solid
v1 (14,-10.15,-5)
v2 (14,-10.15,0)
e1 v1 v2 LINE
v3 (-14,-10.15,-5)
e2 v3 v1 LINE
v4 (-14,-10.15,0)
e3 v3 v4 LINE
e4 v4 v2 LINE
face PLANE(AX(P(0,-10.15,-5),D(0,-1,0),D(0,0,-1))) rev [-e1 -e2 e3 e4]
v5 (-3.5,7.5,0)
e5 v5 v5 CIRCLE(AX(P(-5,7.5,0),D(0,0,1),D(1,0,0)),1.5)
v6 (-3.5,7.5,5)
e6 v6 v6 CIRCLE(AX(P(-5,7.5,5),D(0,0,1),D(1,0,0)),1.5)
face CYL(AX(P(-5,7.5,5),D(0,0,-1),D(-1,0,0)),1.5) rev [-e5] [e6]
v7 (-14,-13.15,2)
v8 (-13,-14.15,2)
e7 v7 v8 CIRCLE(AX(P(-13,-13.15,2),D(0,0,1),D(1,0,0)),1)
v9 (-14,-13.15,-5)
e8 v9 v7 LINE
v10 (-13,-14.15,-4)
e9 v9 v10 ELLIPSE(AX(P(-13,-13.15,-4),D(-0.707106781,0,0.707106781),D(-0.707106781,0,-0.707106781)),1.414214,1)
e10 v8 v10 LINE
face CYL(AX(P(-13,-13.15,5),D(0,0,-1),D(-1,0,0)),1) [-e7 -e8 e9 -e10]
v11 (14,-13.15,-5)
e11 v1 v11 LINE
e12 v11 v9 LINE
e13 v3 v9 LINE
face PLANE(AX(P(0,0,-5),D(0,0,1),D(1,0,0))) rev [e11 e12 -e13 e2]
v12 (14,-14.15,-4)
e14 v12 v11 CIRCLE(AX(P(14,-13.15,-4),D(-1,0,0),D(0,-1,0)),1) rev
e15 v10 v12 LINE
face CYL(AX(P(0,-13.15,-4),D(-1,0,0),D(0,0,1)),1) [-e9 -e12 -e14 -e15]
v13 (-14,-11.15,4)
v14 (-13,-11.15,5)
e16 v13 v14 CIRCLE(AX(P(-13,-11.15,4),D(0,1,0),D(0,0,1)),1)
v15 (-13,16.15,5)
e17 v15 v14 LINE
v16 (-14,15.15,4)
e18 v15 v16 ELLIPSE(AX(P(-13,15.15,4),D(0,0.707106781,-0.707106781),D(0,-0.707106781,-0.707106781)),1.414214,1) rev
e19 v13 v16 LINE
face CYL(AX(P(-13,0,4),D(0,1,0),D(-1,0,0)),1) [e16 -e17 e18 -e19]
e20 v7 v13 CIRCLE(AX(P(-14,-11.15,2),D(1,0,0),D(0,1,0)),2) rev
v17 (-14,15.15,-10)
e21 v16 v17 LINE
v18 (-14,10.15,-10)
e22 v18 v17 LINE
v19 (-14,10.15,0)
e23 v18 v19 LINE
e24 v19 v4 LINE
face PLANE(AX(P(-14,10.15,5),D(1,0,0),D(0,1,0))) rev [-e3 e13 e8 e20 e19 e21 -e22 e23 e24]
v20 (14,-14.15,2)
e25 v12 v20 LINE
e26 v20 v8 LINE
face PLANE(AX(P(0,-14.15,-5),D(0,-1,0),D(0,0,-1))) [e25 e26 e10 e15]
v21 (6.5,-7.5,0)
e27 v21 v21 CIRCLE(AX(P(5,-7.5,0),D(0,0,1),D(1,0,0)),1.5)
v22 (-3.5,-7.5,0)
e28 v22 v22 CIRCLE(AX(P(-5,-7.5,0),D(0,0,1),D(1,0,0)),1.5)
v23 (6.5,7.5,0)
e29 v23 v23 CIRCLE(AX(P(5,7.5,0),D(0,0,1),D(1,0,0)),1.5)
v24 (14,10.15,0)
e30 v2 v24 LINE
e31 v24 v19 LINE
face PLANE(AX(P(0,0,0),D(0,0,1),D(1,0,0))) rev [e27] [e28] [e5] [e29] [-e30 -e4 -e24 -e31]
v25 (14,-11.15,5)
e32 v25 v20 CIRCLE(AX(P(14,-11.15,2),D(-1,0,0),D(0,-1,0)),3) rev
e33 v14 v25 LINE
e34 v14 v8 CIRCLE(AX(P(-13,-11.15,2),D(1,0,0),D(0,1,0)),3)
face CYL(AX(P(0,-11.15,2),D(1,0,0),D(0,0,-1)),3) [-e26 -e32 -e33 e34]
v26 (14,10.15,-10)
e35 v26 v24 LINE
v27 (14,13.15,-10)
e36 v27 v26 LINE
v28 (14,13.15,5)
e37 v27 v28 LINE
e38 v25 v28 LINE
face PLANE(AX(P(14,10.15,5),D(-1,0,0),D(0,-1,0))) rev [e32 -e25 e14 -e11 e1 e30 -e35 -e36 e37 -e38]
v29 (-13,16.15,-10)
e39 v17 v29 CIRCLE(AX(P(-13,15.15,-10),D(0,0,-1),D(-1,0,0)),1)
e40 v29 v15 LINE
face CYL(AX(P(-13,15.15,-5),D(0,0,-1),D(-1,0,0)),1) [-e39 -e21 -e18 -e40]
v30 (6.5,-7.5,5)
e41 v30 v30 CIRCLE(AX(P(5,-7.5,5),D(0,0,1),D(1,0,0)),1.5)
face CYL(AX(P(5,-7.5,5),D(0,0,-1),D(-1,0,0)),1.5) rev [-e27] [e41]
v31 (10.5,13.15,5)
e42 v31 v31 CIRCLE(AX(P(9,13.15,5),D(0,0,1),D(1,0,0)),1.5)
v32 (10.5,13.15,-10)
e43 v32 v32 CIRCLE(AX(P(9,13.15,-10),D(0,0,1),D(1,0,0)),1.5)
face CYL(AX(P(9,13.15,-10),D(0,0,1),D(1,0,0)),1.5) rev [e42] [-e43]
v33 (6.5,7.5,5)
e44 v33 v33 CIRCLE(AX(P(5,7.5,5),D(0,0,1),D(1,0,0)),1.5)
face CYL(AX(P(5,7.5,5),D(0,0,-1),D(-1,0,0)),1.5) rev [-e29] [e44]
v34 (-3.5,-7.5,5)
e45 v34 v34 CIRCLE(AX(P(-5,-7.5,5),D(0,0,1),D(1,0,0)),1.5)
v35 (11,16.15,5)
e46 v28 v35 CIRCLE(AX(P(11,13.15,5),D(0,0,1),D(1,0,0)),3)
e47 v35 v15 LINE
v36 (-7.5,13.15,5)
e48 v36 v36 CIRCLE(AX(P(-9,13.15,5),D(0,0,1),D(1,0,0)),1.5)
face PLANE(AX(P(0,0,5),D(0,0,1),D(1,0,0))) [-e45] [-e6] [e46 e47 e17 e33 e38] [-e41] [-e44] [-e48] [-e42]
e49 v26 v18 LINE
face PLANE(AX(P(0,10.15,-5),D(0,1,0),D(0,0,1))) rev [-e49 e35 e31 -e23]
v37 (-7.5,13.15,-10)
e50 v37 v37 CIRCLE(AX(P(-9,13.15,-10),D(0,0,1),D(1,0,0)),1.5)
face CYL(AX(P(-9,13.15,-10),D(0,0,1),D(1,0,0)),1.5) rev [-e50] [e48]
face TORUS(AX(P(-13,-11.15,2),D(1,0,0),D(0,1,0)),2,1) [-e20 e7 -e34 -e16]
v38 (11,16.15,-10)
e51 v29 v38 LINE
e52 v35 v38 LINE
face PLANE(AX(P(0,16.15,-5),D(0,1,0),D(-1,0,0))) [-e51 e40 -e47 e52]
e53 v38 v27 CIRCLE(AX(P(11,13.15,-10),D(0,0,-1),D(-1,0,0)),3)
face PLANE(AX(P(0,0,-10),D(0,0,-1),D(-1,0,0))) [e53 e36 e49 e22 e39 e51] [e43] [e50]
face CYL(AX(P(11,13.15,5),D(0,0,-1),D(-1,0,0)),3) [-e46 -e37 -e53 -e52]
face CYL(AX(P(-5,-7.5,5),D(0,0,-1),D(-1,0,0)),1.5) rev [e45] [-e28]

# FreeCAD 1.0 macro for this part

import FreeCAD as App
import Part
import Sketcher

V = App.Vector


def edges_at(feature, points):
    """Names of the edges that pass closest to the given points."""
    edges = feature.Shape.Edges
    near = lambda p: min(range(len(edges)), key=lambda i: edges[i].distToShape(Part.Vertex(*p))[0])
    return sorted({f"Edge{near(p) + 1}" for p in points})

doc = App.newDocument("Part")
body = doc.addObject("PartDesign::Body", "Body")

# Sketch on XY plane
sketch1 = body.newObject("Sketcher::SketchObject", "Sketch")
sketch1.AttachmentSupport = (doc.getObject("XY_Plane"), [""])
sketch1.MapMode = "FlatFace"
sketch1.addGeometry([
    Part.LineSegment(V(-14, 10.2, 0), V(-14, -10.2, 0)),  # 0
    Part.LineSegment(V(-14, -10.2, 0), V(14, -10.2, 0)),  # 1
    Part.LineSegment(V(14, -10.2, 0), V(14, 10.2, 0)),  # 2
    Part.LineSegment(V(14, 10.2, 0), V(-14, 10.2, 0)),  # 3
    Part.Circle(V(-5, -7.5, 0), V(0, 0, 1), 1.5),  # 4
    Part.Circle(V(5, -7.5, 0), V(0, 0, 1), 1.5),  # 5
    Part.Circle(V(-5, 7.5, 0), V(0, 0, 1), 1.5),  # 6
    Part.Circle(V(5, 7.5, 0), V(0, 0, 1), 1.5),  # 7
], False)
sketch1.addConstraint([
    Sketcher.Constraint("Coincident", 0, 2, 1, 1),
    Sketcher.Constraint("Coincident", 1, 2, 2, 1),
    Sketcher.Constraint("Coincident", 2, 2, 3, 1),
    Sketcher.Constraint("Coincident", 3, 2, 0, 1),
    Sketcher.Constraint("Vertical", 0),
    Sketcher.Constraint("Horizontal", 1),
    Sketcher.Constraint("Vertical", 2),
    Sketcher.Constraint("Horizontal", 3),
    Sketcher.Constraint("Equal", 4, 5),
    Sketcher.Constraint("Equal", 5, 6),
    Sketcher.Constraint("Equal", 6, 7),
    Sketcher.Constraint("Symmetric", 5, 3, 6, 3, -1, 1),
    Sketcher.Constraint("Symmetric", 4, 3, 7, 3, -1, 1),
    Sketcher.Constraint("Symmetric", 0, 2, 2, 2, -1, 1),
    Sketcher.Constraint("Symmetric", 4, 3, 5, 3, -2),
    Sketcher.Constraint("Diameter", 4, 3.0),
    Sketcher.Constraint("DistanceX", 1, 1, 1, 2, 28.0),
    Sketcher.Constraint("DistanceY", 0, 2, 0, 1, 20.3),
    Sketcher.Constraint("DistanceX", 4, 3, -1, 1, 5.0),
    Sketcher.Constraint("DistanceY", 4, 3, 6, 3, 15.0),
])
pad1 = body.newObject("PartDesign::Pad", "Pad")
pad1.Profile = sketch1
pad1.Length = 5

# Sketch on XY plane
sketch2 = body.newObject("Sketcher::SketchObject", "Sketch001")
sketch2.AttachmentSupport = (doc.getObject("XY_Plane"), [""])
sketch2.MapMode = "FlatFace"
sketch2.AttachmentOffset = App.Placement(V(0, 0, 5), App.Rotation())
sketch2.addGeometry([
    Part.LineSegment(V(-14, 16.1, 0), V(-14, 10.2, 0)),  # 0
    Part.LineSegment(V(-14, 10.2, 0), V(14, 10.2, 0)),  # 1
    Part.LineSegment(V(14, 10.2, 0), V(14, 16.1, 0)),  # 2
    Part.LineSegment(V(14, 16.1, 0), V(-14, 16.1, 0)),  # 3
    Part.LineSegment(V(-14, -10.2, 0), V(-14, -14.2, 0)),  # 4
    Part.LineSegment(V(-14, -14.2, 0), V(14, -14.2, 0)),  # 5
    Part.LineSegment(V(14, -14.2, 0), V(14, -10.2, 0)),  # 6
    Part.LineSegment(V(14, -10.2, 0), V(-14, -10.2, 0)),  # 7
], False)
sketch2.addConstraint([
    Sketcher.Constraint("Coincident", 0, 2, 1, 1),
    Sketcher.Constraint("Coincident", 1, 2, 2, 1),
    Sketcher.Constraint("Coincident", 2, 2, 3, 1),
    Sketcher.Constraint("Coincident", 3, 2, 0, 1),
    Sketcher.Constraint("Coincident", 4, 2, 5, 1),
    Sketcher.Constraint("Coincident", 5, 2, 6, 1),
    Sketcher.Constraint("Coincident", 6, 2, 7, 1),
    Sketcher.Constraint("Coincident", 7, 2, 4, 1),
    Sketcher.Constraint("Vertical", 0),
    Sketcher.Constraint("Horizontal", 1),
    Sketcher.Constraint("Vertical", 2),
    Sketcher.Constraint("Horizontal", 3),
    Sketcher.Constraint("Vertical", 4),
    Sketcher.Constraint("Horizontal", 5),
    Sketcher.Constraint("Vertical", 6),
    Sketcher.Constraint("Horizontal", 7),
    Sketcher.Constraint("Symmetric", 0, 2, 6, 2, -1, 1),
    Sketcher.Constraint("Vertical", 3, 2, 4, 2),
    Sketcher.Constraint("Vertical", 2, 2, 5, 2),
    Sketcher.Constraint("DistanceX", 1, 1, 1, 2, 28.0),
    Sketcher.Constraint("DistanceY", 0, 2, 0, 1, 6.0),
    Sketcher.Constraint("DistanceY", 4, 2, 4, 1, 4.0),
    Sketcher.Constraint("DistanceY", 4, 2, 0, 2, 24.3),
])
pad2 = body.newObject("PartDesign::Pad", "Pad001")
pad2.Profile = sketch2
pad2.Length = 10
pad2.Reversed = True

# Sketch on XY plane
sketch3 = body.newObject("Sketcher::SketchObject", "Sketch002")
sketch3.AttachmentSupport = (doc.getObject("XY_Plane"), [""])
sketch3.MapMode = "FlatFace"
sketch3.AttachmentOffset = App.Placement(V(0, 0, -5), App.Rotation())
sketch3.addGeometry([
    Part.LineSegment(V(14, 16, 0), V(14, 10, 0)),
    Part.LineSegment(V(14, 10, 0), V(-14, 10, 0)),
    Part.LineSegment(V(-14, 10, 0), V(-14, 16, 0)),
    Part.LineSegment(V(-14, 16, 0), V(14, 16, 0)),
], False)
sketch3.addConstraint([
    Sketcher.Constraint("Coincident", 0, 2, 1, 1),
    Sketcher.Constraint("Coincident", 1, 2, 2, 1),
    Sketcher.Constraint("Coincident", 2, 2, 3, 1),
    Sketcher.Constraint("Coincident", 3, 2, 0, 1),
    Sketcher.Constraint("Vertical", 0),
    Sketcher.Constraint("Horizontal", 1),
    Sketcher.Constraint("Vertical", 2),
    Sketcher.Constraint("Horizontal", 3),
    Sketcher.Constraint("DistanceX", 1, 2, 1, 1, 28.0),
    Sketcher.Constraint("DistanceY", 0, 2, 0, 1, 6.0),
    Sketcher.Constraint("DistanceX", -1, 1, 0, 2, 14.0),
    Sketcher.Constraint("DistanceY", -1, 1, 0, 2, 10.15),
])
pad3 = body.newObject("PartDesign::Pad", "Pad002")
pad3.Profile = sketch3
pad3.Length = 5
pad3.Reversed = True
doc.recompute()

fillet = body.newObject("PartDesign::Fillet", "Fillet")
fillet.Base = (pad3, edges_at(pad3, [(14, 16.15, -2.5), (0, -14.15, 5)]))
fillet.Radius = 3
doc.recompute()

fillet2 = body.newObject("PartDesign::Fillet", "Fillet001")
fillet2.Base = (fillet, edges_at(fillet, [
    (-14, 2.5, 5),
    (-14, 16.15, -2.5),
    (0, -14.15, -5),
    (-14, -14.15, -1.5),
    (-14, -13.271, 4.121),
]))
fillet2.Radius = 1

# Sketch on XY plane
sketch4 = body.newObject("Sketcher::SketchObject", "Sketch003")
sketch4.AttachmentSupport = (doc.getObject("XY_Plane"), [""])
sketch4.MapMode = "FlatFace"
sketch4.AttachmentOffset = App.Placement(V(0, 0, 5), App.Rotation())
sketch4.addGeometry([
    Part.Circle(V(-9, 13.2, 0), V(0, 0, 1), 1.5),
    Part.Circle(V(9, 13.2, 0), V(0, 0, 1), 1.5),
], False)
sketch4.addConstraint([
    Sketcher.Constraint("Equal", 0, 1),
    Sketcher.Constraint("Symmetric", 0, 3, 1, 3, -2),
    Sketcher.Constraint("Diameter", 0, 3.0),
    Sketcher.Constraint("DistanceX", 0, 3, -1, 1, 9.0),
    Sketcher.Constraint("DistanceY", -1, 1, 0, 3, 13.15),
])
pocket1 = body.newObject("PartDesign::Pocket", "Pocket")
pocket1.Profile = sketch4
pocket1.Type = "ThroughAll"

doc.recompute()
